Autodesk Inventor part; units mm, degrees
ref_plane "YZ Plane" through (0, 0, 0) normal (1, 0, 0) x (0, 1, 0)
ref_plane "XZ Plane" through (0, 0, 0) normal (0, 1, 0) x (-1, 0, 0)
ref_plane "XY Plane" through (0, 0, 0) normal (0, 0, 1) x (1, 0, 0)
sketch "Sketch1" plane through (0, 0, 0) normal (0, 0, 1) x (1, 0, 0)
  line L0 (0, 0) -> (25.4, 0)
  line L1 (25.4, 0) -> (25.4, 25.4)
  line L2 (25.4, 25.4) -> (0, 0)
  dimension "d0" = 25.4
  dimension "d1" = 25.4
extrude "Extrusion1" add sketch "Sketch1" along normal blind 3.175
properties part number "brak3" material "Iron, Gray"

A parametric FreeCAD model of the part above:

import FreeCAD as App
import Part
import Sketcher
Q = App.Units.Quantity


def add_polygon(sketch, points):
    """Adds a closed chain of lines whose ends are joined by coincident constraints."""
    first, n = sketch.GeometryCount, len(points)
    for a, b in zip(points, points[1:] + points[:1]):
        sketch.addGeometry(Part.LineSegment(App.Vector(*a, 0), App.Vector(*b, 0)), False)
    for i in range(n):
        sketch.addConstraint(Sketcher.Constraint("Coincident", first + i, 2, first + (i + 1) % n, 1))

doc = App.newDocument("Part")
params = doc.addObject("Spreadsheet::Sheet", "Params")
for row, (alias, value) in enumerate([
    ("sketch1_width", "1 in"),
    ("pad1_length", "0.125 in"),
], start=1):
    params.set(f"A{row}", alias)
    params.set(f"B{row}", "=" + value)
    params.setAlias(f"B{row}", alias)

body = doc.addObject("PartDesign::Body", "Body")

# Sketch on XY plane
sketch1 = body.newObject("Sketcher::SketchObject", "Sketch")
sketch1.AttachmentSupport = (doc.getObject("XY_Plane"), [""])
sketch1.MapMode = "FlatFace"
add_polygon(sketch1, [(25.4, 25.4), (0, 0), (25.4, 0)])  # lines 0-2
sketch1.addConstraint(Sketcher.Constraint("Horizontal", 1))
sketch1.addConstraint(Sketcher.Constraint("Vertical", 2))
sketch1.addConstraint(Sketcher.Constraint("Coincident", 0, 2, -1, 1))
sketch1.addConstraint(Sketcher.Constraint("Equal", 1, 2))
sketch1.addConstraint(Sketcher.Constraint("DistanceX", 1, 1, 1, 2, Q("1 in")))
sketch1.setExpression("Constraints[7]", "Params.sketch1_width")
pad1 = body.newObject("PartDesign::Pad", "Pad")
pad1.Profile = sketch1
pad1.setExpression("Length", "Params.pad1_length")

doc.recompute()
